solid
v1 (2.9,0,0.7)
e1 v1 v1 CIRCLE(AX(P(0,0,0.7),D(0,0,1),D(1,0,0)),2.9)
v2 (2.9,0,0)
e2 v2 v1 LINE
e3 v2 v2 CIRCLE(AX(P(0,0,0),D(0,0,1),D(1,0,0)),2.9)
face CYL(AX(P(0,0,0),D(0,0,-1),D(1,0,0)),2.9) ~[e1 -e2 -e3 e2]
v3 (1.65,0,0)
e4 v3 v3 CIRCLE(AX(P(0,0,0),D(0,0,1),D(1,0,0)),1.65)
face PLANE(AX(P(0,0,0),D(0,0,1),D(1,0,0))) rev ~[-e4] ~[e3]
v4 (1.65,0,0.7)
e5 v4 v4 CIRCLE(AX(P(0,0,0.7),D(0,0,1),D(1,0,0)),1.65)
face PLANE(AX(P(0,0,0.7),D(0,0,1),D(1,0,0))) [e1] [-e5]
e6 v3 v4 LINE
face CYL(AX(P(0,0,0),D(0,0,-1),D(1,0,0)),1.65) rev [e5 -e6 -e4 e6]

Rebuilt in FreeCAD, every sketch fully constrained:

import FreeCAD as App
import Part
import Sketcher
Q = App.Units.Quantity

doc = App.newDocument("Part")
params = doc.addObject("Spreadsheet::Sheet", "Params")
for row, (alias, value) in enumerate([
    ("sketch1_diameter", "5.8 mm"),
    ("sketch1_diameter2", "3.3 mm"),
    ("pad1_length", "0.7 mm"),
], start=1):
    params.set(f"A{row}", alias)
    params.set(f"B{row}", "=" + value)
    params.setAlias(f"B{row}", alias)

body = doc.addObject("PartDesign::Body", "Body")

# Sketch on XY plane
sketch1 = doc.addObject("Sketcher::SketchObject", "Sketch")
body.addObject(sketch1)
sketch1.AttachmentSupport = (doc.XY_Plane, [""])
sketch1.MapMode = "FlatFace"
sketch1.addGeometry([
    Part.Circle(App.Vector(0, 0, 0), App.Vector(0, 0, 1), 2.9),
    Part.Circle(App.Vector(0, 0, 0), App.Vector(0, 0, 1), 1.6),
], False)
sketch1.addConstraint([
    Sketcher.Constraint("Coincident", 0, 3, -1, 1),
    Sketcher.Constraint("Coincident", 1, 3, -1, 1),
    Sketcher.Constraint("Diameter", 0, Q("5.8 mm")),
    Sketcher.Constraint("Diameter", 1, Q("3.3 mm")),
])
sketch1.setExpression("Constraints[2]", "Params.sketch1_diameter")
sketch1.setExpression("Constraints[3]", "Params.sketch1_diameter2")
pad1 = doc.addObject("PartDesign::Pad", "Pad")
body.addObject(pad1)
pad1.Profile = sketch1
pad1.setExpression("Length", "Params.pad1_length")

doc.recompute()
